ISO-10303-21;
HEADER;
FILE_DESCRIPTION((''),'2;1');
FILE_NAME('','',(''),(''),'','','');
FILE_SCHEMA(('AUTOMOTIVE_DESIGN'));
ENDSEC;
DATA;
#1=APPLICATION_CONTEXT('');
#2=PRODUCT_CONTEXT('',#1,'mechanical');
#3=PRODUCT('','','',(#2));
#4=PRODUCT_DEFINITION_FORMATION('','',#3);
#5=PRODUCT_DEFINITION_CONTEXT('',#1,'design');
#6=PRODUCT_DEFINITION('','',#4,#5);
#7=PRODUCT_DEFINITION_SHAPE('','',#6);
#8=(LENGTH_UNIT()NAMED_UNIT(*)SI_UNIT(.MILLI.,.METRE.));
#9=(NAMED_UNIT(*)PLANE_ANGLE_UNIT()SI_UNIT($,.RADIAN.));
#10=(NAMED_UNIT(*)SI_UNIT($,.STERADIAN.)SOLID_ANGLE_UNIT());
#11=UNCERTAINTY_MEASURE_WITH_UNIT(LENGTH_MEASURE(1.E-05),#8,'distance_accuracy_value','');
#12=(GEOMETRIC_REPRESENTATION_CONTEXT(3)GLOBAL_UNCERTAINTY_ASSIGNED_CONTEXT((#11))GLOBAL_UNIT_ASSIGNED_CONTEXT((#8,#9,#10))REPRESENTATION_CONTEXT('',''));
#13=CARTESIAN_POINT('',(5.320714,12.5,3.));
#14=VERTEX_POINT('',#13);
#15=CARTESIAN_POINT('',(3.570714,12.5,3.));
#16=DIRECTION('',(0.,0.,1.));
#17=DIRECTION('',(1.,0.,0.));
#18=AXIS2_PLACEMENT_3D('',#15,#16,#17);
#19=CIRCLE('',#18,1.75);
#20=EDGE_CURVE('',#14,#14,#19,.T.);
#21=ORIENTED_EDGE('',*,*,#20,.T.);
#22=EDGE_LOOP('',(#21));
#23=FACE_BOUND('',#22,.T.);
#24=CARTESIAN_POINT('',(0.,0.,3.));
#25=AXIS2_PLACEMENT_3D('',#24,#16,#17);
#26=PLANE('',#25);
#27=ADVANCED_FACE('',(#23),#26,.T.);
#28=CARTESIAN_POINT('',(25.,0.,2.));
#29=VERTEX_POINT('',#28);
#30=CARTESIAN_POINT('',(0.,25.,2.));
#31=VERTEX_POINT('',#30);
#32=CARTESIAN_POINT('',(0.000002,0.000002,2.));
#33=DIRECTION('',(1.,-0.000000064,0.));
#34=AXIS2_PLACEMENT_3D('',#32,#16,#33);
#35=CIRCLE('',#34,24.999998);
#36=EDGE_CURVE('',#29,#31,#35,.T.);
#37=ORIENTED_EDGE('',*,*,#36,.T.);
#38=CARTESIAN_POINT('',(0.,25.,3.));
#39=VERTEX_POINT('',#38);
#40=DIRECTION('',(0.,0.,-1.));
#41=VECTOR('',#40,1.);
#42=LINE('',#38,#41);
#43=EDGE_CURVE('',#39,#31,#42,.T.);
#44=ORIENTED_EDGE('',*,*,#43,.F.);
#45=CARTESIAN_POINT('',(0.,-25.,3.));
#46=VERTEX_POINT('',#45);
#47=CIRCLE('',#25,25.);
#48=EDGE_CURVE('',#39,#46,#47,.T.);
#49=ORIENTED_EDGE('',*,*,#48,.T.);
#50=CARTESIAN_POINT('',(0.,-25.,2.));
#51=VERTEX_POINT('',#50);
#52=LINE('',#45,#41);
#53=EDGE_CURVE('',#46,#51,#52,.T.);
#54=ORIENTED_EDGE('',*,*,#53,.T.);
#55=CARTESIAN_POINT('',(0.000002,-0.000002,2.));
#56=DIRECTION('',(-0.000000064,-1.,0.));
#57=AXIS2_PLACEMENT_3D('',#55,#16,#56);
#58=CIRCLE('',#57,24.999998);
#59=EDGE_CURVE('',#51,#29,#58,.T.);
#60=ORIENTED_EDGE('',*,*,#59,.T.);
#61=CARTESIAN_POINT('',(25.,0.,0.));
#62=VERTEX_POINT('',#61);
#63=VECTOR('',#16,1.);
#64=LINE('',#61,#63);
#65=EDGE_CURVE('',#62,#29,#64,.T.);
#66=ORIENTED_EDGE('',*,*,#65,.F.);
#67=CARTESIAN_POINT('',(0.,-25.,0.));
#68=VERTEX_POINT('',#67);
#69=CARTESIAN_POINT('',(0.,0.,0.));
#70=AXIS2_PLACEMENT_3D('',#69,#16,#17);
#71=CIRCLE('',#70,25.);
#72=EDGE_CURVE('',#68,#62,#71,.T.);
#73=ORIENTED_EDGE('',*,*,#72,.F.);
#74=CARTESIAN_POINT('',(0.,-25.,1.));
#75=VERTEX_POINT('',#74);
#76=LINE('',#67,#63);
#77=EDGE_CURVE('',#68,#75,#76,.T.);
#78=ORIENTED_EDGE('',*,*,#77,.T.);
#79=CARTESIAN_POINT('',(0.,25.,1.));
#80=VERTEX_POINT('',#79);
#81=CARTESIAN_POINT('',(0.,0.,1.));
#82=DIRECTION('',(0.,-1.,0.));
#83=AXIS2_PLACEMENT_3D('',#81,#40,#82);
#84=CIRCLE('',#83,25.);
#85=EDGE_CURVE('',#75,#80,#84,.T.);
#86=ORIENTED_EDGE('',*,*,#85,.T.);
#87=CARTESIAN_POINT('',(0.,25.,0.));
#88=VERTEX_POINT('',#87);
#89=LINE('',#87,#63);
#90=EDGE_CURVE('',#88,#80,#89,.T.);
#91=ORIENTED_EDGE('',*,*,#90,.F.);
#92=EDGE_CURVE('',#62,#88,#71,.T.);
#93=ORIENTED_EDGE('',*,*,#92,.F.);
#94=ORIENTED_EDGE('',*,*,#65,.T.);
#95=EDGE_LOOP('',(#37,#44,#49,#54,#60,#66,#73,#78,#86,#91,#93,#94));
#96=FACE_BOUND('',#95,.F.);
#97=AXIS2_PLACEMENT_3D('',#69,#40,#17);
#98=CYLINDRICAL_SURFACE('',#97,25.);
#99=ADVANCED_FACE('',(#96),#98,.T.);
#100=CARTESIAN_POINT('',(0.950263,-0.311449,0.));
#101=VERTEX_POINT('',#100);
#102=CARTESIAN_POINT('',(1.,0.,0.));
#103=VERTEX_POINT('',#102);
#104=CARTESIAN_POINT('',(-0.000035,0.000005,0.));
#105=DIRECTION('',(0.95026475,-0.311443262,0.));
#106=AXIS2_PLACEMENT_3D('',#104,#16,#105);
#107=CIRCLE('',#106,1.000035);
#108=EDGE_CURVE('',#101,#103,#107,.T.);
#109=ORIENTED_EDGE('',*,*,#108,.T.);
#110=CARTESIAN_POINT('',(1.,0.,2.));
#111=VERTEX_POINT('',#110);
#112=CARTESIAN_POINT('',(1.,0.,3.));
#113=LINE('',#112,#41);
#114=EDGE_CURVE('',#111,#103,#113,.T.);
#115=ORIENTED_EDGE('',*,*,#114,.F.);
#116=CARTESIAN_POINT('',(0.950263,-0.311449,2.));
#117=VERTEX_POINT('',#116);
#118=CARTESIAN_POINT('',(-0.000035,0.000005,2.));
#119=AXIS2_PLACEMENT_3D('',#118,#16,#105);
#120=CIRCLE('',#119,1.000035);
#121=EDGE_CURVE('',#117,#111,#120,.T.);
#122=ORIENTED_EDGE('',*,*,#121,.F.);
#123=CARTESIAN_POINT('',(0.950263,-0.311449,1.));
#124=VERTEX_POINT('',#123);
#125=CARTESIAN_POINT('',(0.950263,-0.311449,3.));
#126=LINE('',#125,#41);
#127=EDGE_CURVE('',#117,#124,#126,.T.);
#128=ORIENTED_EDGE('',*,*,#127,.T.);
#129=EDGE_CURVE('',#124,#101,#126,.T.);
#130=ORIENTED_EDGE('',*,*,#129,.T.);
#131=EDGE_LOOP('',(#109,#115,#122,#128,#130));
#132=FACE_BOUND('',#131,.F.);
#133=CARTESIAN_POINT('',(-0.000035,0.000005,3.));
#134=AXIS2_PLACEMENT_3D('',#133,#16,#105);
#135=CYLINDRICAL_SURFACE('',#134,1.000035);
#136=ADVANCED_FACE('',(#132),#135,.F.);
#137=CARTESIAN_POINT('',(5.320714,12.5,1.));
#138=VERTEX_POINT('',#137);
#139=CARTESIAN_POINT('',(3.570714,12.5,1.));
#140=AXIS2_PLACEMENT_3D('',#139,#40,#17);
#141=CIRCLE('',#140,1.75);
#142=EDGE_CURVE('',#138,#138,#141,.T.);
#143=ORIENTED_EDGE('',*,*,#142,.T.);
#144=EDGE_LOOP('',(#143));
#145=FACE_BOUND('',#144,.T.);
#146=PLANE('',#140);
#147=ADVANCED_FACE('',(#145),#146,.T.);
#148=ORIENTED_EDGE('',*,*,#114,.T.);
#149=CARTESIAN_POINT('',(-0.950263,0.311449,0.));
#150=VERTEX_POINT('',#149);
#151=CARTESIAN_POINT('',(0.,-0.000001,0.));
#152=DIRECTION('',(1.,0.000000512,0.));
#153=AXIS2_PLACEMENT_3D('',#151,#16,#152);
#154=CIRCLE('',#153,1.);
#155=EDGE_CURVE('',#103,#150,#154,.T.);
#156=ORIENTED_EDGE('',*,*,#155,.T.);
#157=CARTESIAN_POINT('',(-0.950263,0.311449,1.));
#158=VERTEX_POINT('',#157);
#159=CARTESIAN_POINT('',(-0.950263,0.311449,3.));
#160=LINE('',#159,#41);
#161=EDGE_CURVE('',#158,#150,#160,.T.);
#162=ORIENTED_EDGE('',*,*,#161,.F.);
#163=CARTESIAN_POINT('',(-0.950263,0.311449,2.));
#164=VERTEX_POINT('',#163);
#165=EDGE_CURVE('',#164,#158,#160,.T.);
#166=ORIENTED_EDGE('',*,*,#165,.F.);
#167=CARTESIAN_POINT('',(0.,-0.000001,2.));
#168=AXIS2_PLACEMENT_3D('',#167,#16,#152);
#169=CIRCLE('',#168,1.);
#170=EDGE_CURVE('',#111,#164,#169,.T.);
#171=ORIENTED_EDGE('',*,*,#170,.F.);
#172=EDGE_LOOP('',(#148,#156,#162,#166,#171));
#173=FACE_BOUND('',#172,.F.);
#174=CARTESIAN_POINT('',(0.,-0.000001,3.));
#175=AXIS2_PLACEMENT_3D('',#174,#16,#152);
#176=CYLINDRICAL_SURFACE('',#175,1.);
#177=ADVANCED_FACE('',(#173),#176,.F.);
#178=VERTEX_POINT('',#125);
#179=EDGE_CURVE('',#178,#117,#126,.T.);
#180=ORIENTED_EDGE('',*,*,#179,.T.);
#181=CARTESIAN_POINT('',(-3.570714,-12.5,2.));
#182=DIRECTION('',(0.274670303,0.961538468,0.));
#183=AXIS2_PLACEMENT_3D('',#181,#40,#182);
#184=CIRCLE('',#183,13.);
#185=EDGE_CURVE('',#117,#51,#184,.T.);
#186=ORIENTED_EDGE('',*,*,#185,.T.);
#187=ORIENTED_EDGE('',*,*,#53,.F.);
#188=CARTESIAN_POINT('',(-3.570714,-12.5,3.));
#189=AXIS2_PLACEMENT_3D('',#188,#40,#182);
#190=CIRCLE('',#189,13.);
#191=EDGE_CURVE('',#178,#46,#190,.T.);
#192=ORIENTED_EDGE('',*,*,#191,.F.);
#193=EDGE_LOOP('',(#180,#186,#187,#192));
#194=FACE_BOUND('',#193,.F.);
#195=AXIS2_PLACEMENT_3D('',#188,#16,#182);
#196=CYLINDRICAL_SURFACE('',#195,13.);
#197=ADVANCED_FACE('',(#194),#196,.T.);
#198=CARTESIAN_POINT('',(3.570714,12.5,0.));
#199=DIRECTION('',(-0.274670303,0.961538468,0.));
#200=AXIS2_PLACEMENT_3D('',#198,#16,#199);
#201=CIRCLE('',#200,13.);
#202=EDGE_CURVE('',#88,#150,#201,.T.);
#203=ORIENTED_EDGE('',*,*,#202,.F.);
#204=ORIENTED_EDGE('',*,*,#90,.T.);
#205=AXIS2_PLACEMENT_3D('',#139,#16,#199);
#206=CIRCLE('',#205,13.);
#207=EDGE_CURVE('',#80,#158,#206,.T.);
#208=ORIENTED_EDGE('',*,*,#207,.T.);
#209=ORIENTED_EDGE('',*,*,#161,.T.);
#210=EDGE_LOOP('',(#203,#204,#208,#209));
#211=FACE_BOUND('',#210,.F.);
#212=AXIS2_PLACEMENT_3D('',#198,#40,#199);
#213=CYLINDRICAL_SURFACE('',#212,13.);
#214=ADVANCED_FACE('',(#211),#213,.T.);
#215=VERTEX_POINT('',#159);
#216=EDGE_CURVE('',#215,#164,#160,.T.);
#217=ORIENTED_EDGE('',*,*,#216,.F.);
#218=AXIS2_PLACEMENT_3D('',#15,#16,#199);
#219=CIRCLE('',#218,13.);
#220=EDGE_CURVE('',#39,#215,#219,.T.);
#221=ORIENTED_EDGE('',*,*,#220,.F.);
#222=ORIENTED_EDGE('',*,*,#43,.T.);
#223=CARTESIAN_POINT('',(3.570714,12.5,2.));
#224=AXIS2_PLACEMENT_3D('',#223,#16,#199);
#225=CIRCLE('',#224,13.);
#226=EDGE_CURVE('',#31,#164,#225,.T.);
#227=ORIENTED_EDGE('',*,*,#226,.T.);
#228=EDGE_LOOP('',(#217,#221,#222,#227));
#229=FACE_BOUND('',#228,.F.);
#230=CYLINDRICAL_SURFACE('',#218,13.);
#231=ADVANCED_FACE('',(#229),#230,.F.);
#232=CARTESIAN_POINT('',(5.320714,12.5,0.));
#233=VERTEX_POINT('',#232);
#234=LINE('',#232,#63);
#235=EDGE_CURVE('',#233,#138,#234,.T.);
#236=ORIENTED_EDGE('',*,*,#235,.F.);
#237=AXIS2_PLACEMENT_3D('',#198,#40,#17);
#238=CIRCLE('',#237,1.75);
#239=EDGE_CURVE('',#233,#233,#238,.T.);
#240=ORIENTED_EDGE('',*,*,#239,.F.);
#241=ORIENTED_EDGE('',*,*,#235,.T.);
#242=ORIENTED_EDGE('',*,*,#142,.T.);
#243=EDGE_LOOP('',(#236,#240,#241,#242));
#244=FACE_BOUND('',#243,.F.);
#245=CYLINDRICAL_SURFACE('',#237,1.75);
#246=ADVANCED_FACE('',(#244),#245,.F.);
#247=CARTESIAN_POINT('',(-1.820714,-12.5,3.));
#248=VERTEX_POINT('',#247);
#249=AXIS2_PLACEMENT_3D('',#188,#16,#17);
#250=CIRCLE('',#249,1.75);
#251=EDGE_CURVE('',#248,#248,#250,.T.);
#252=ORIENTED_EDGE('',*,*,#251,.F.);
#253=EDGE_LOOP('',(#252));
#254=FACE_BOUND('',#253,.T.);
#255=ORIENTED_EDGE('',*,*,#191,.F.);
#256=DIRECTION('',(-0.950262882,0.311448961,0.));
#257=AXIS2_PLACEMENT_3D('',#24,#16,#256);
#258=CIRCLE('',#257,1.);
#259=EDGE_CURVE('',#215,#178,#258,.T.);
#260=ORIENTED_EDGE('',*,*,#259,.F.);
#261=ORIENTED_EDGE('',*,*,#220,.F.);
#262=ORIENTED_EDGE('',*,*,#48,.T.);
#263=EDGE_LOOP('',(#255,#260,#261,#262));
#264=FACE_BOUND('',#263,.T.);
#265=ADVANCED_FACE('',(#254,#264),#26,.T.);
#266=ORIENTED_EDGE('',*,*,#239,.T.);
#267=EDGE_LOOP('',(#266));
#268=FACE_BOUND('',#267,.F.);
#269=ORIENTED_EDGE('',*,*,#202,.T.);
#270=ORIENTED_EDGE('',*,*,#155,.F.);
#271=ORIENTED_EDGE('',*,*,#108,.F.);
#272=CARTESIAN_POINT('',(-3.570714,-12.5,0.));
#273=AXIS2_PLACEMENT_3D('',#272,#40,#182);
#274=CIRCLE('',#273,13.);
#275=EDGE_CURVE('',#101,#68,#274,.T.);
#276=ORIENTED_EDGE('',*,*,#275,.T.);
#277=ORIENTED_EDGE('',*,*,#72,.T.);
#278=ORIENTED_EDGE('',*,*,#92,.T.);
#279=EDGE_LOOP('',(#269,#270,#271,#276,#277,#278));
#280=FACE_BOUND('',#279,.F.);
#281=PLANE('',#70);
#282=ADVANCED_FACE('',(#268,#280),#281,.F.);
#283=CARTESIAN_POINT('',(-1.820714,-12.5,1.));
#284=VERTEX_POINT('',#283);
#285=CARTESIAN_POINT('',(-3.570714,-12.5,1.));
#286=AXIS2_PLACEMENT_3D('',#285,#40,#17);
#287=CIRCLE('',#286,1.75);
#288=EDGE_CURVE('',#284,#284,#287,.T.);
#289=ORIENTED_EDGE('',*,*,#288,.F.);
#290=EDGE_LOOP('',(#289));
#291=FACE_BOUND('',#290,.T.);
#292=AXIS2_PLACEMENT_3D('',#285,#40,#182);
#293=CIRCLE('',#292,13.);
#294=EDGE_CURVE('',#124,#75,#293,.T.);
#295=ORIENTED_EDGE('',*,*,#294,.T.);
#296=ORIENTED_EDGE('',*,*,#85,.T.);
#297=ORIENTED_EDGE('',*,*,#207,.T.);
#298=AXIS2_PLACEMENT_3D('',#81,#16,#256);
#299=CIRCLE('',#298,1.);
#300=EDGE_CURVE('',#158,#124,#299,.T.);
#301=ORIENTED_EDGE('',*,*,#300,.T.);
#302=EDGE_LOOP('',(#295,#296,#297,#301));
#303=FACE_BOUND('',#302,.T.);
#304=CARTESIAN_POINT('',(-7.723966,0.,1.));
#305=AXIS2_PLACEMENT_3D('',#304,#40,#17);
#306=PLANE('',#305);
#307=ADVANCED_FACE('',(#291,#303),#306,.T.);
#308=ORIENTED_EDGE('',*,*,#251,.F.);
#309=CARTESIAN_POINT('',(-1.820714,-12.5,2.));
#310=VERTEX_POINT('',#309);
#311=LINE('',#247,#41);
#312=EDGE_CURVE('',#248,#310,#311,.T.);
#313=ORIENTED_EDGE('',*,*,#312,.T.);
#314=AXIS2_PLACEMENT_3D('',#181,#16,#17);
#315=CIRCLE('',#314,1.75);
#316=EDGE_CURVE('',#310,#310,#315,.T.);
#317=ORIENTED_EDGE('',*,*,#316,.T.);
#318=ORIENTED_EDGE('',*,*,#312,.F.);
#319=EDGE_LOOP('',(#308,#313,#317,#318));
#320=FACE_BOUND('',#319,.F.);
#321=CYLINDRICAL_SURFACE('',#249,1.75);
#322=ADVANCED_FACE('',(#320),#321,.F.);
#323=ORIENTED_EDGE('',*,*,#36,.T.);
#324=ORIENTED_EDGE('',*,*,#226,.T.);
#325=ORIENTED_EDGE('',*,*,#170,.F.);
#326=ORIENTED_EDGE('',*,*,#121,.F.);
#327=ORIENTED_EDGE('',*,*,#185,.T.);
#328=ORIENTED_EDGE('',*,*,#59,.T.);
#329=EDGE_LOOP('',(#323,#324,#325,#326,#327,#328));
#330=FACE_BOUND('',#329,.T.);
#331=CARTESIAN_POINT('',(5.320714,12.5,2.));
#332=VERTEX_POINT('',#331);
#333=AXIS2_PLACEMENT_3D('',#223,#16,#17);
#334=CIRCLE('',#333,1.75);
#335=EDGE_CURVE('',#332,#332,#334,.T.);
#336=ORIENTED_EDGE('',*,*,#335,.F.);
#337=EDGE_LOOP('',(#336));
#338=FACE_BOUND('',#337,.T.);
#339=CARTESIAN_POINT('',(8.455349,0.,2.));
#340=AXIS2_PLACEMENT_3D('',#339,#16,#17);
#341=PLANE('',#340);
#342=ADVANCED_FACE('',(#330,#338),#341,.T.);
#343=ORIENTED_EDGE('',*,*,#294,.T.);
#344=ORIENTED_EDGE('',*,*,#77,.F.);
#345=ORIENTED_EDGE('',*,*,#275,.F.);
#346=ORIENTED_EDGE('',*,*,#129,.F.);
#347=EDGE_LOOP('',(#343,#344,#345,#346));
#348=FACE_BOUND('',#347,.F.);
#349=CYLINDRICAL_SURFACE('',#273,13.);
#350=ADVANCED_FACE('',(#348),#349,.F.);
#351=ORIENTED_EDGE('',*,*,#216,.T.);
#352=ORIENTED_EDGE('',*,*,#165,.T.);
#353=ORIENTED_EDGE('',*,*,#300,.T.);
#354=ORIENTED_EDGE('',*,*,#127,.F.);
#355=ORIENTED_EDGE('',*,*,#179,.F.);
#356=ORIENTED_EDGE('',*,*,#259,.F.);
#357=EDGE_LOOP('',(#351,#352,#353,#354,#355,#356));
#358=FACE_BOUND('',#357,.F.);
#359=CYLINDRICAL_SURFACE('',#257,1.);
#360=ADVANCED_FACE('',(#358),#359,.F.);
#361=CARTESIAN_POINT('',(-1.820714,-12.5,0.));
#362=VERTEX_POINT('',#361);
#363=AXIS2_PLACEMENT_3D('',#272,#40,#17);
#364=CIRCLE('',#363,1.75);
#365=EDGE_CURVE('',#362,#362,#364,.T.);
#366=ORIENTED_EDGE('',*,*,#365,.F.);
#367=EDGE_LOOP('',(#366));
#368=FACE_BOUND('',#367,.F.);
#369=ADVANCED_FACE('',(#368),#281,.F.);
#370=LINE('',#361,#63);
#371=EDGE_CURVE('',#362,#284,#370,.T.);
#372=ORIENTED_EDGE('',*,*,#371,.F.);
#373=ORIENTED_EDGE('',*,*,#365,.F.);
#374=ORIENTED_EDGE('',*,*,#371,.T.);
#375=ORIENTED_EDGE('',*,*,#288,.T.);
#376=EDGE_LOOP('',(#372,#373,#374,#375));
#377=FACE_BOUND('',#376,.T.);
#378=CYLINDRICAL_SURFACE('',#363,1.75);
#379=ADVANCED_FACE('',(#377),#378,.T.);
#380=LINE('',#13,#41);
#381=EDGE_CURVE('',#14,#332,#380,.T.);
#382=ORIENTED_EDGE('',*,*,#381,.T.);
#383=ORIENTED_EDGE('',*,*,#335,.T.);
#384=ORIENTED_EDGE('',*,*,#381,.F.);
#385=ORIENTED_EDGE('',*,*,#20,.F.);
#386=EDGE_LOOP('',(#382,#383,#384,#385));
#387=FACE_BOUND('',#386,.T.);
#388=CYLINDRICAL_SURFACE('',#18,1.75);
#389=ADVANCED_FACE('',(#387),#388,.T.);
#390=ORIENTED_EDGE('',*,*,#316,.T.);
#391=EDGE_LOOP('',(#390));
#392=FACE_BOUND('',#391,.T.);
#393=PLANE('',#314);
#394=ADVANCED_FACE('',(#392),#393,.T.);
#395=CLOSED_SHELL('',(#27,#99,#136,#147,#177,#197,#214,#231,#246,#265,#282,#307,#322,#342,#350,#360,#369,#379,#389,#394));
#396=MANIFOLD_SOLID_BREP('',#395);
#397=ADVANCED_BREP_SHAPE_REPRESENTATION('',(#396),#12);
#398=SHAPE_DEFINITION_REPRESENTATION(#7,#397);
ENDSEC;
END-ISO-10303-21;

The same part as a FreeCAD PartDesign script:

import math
import FreeCAD as App
import Part
import Sketcher

V = App.Vector
Q = App.Units.Quantity

doc = App.newDocument("Part")
params = doc.addObject("Spreadsheet::Sheet", "Params")
for row, (alias, value) in enumerate([
    ("sketch1_diameter", "50 mm"),
    ("pad1_length", "3 mm"),
    ("sketch2_radius", "24.999998 mm"),
    ("sketch2_radius2", "13 mm"),
    ("sketch2_diameter", "3.5 mm"),
    ("pocket1_length", "1 mm"),
    ("sketch3_radius", "13 mm"),
    ("sketch3_radius2", "25 mm"),
    ("sketch3_diameter", "3.5 mm"),
    ("pocket2_length", "1 mm"),
    ("sketch4_radius", "1 mm"),
    ("pocket3_length", "25 mm"),
], start=1):
    params.set(f"A{row}", alias)
    params.set(f"B{row}", "=" + value)
    params.setAlias(f"B{row}", alias)

body = doc.addObject("PartDesign::Body", "Body")

# Sketch on XY plane
sketch1 = body.newObject("Sketcher::SketchObject", "Sketch")
sketch1.AttachmentSupport = (doc.getObject("XY_Plane"), [""])
sketch1.MapMode = "FlatFace"
sketch1.addGeometry(Part.Circle(V(0, 0, 0), V(0, 0, 1), 25), False)
sketch1.addConstraint(Sketcher.Constraint("Coincident", 0, 3, -1, 1))
sketch1.addConstraint(Sketcher.Constraint("Diameter", 0, Q("50 mm")))
sketch1.setExpression("Constraints[1]", "Params.sketch1_diameter")
pad1 = body.newObject("PartDesign::Pad", "Pad")
pad1.Profile = sketch1
pad1.setExpression("Length", "Params.pad1_length")

# Sketch on XY plane
sketch2 = body.newObject("Sketcher::SketchObject", "Sketch001")
sketch2.AttachmentSupport = (doc.getObject("XY_Plane"), [""])
sketch2.MapMode = "FlatFace"
sketch2.AttachmentOffset = App.Placement(V(0, 0, 3), App.Rotation())
sketch2.addGeometry(Part.ArcOfCircle(Part.Circle(V(0.000002, -0.000002, 0), V(0, 0, 1), 24.999998), math.radians(-90.000004), math.radians(0.000004)), False)
sketch2.addGeometry(Part.ArcOfCircle(Part.Circle(V(0.000002, 0.000002, 0), V(0, 0, 1), 24.999998), math.radians(-0.000004), math.radians(90.000004)), False)
sketch2.addGeometry(Part.ArcOfCircle(Part.Circle(V(3.570714, 12.5, 0), V(0, 0, 1), 13), math.radians(105.942367), math.radians(254.057633)), False)
sketch2.addGeometry(Part.ArcOfCircle(Part.Circle(V(-3.570714, -12.5, 0), V(0, 0, 1), 13), math.radians(-74.057633), math.radians(74.057633)), False)
sketch2.addGeometry(Part.Circle(V(3.570714, 12.5, 0), V(0, 0, 1), 1.75), False)
sketch2.addGeometry(Part.Circle(V(-3.570714, -12.5, 0), V(0, 0, 1), 1.75), False)
sketch2.addConstraint(Sketcher.Constraint("Tangent", 0, 2, 1, 1))
sketch2.addConstraint(Sketcher.Constraint("Coincident", 1, 2, 2, 1))
sketch2.addConstraint(Sketcher.Constraint("Tangent", 2, 2, 3, 2))
sketch2.addConstraint(Sketcher.Constraint("Coincident", 3, 1, 0, 1))
sketch2.addConstraint(Sketcher.Constraint("Coincident", 0, 3, -1, 1))
sketch2.addConstraint(Sketcher.Constraint("Coincident", 2, 2, -1, 1))
sketch2.addConstraint(Sketcher.Constraint("Coincident", 4, 3, 2, 3))
sketch2.addConstraint(Sketcher.Constraint("Coincident", 5, 3, 3, 3))
sketch2.addConstraint(Sketcher.Constraint("Equal", 0, 1))
sketch2.addConstraint(Sketcher.Constraint("Equal", 2, 3))
sketch2.addConstraint(Sketcher.Constraint("Equal", 4, 5))
sketch2.addConstraint(Sketcher.Constraint("PointOnObject", 0, 2, -1))
sketch2.addConstraint(Sketcher.Constraint("PointOnObject", 1, 2, -2))
sketch2.addConstraint(Sketcher.Constraint("Radius", 0, Q("24.999998 mm")))
sketch2.addConstraint(Sketcher.Constraint("Radius", 2, Q("13 mm")))
sketch2.addConstraint(Sketcher.Constraint("Diameter", 4, Q("3.5 mm")))
sketch2.setExpression("Constraints[13]", "Params.sketch2_radius")
sketch2.setExpression("Constraints[14]", "Params.sketch2_radius2")
sketch2.setExpression("Constraints[15]", "Params.sketch2_diameter")
pocket1 = body.newObject("PartDesign::Pocket", "Pocket")
pocket1.Profile = sketch2
pocket1.setExpression("Length", "Params.pocket1_length")

# Sketch on XY plane
sketch3 = body.newObject("Sketcher::SketchObject", "Sketch002")
sketch3.AttachmentSupport = (doc.getObject("XY_Plane"), [""])
sketch3.MapMode = "FlatFace"
sketch3.addGeometry(Part.ArcOfCircle(Part.Circle(V(-3.570714, -12.5, 0), V(0, 0, 1), 13), math.radians(-74.057633), math.radians(74.057633)), False)
sketch3.addGeometry(Part.ArcOfCircle(Part.Circle(V(0, 0, 0), V(0, 0, 1), 25), math.radians(90), math.radians(270)), False)
sketch3.addGeometry(Part.ArcOfCircle(Part.Circle(V(3.570714, 12.5, 0), V(0, 0, 1), 13), math.radians(105.942367), math.radians(254.057633)), False)
sketch3.addGeometry(Part.Circle(V(-3.570714, -12.5, 0), V(0, 0, 1), 1.75), False)
sketch3.addGeometry(Part.Circle(V(3.570714, 12.5, 0), V(0, 0, 1), 1.75), False)
sketch3.addConstraint(Sketcher.Constraint("Coincident", 0, 1, 1, 2))
sketch3.addConstraint(Sketcher.Constraint("Coincident", 1, 1, 2, 1))
sketch3.addConstraint(Sketcher.Constraint("Tangent", 2, 2, 0, 2))
sketch3.addConstraint(Sketcher.Constraint("Coincident", 1, 3, -1, 1))
sketch3.addConstraint(Sketcher.Constraint("Coincident", 2, 2, -1, 1))
sketch3.addConstraint(Sketcher.Constraint("Coincident", 3, 3, 0, 3))
sketch3.addConstraint(Sketcher.Constraint("Coincident", 4, 3, 2, 3))
sketch3.addConstraint(Sketcher.Constraint("Equal", 0, 2))
sketch3.addConstraint(Sketcher.Constraint("Equal", 3, 4))
sketch3.addConstraint(Sketcher.Constraint("PointOnObject", 0, 1, -2))
sketch3.addConstraint(Sketcher.Constraint("Radius", 0, Q("13 mm")))
sketch3.addConstraint(Sketcher.Constraint("Radius", 1, Q("25 mm")))
sketch3.addConstraint(Sketcher.Constraint("Diameter", 3, Q("3.5 mm")))
sketch3.setExpression("Constraints[10]", "Params.sketch3_radius")
sketch3.setExpression("Constraints[11]", "Params.sketch3_radius2")
sketch3.setExpression("Constraints[12]", "Params.sketch3_diameter")
pocket2 = body.newObject("PartDesign::Pocket", "Pocket001")
pocket2.Profile = sketch3
pocket2.setExpression("Length", "Params.pocket2_length")
pocket2.Reversed = True

# Sketch on XY plane
sketch4 = body.newObject("Sketcher::SketchObject", "Sketch003")
sketch4.AttachmentSupport = (doc.getObject("XY_Plane"), [""])
sketch4.MapMode = "FlatFace"
sketch4.AttachmentOffset = App.Placement(V(0, 0, 3), App.Rotation())
sketch4.addGeometry(Part.ArcOfCircle(Part.Circle(V(0, 0, 0), V(0, 0, 1), 1), math.radians(161.853427), math.radians(341.853427)), False)
sketch4.addGeometry(Part.ArcOfCircle(Part.Circle(V(-0.000035, 0.000005, 0), V(0, 0, 1), 1.000035), math.radians(-18.14623), math.radians(-0.000299)), False)
sketch4.addGeometry(Part.ArcOfCircle(Part.Circle(V(0, -0.000001, 0), V(0, 0, 1), 1), math.radians(0.000029), math.radians(161.853396)), False)
sketch4.addConstraint(Sketcher.Constraint("Coincident", 0, 2, 1, 1))
sketch4.addConstraint(Sketcher.Constraint("Coincident", 1, 2, 2, 1))
sketch4.addConstraint(Sketcher.Constraint("Tangent", 2, 2, 0, 1))
sketch4.addConstraint(Sketcher.Constraint("Coincident", 0, 3, -1, 1))
sketch4.addConstraint(Sketcher.Constraint("Equal", 0, 2))
sketch4.addConstraint(Sketcher.Constraint("PointOnObject", 1, 2, -1))
sketch4.addConstraint(Sketcher.Constraint("Radius", 0, Q("1 mm")))
sketch4.addConstraint(Sketcher.Constraint("Radius", 1, Q("1.000035 mm")))
sketch4.addConstraint(Sketcher.Constraint("DistanceX", 1, 3, 0, 2, Q("0.950298 mm")))
sketch4.addConstraint(Sketcher.Constraint("DistanceY", 0, 2, 2, 2, Q("0.622898 mm")))
sketch4.setExpression("Constraints[6]", "Params.sketch4_radius")
pocket3 = body.newObject("PartDesign::Pocket", "Pocket002")
pocket3.Profile = sketch4
pocket3.setExpression("Length", "Params.pocket3_length")

doc.recompute()
